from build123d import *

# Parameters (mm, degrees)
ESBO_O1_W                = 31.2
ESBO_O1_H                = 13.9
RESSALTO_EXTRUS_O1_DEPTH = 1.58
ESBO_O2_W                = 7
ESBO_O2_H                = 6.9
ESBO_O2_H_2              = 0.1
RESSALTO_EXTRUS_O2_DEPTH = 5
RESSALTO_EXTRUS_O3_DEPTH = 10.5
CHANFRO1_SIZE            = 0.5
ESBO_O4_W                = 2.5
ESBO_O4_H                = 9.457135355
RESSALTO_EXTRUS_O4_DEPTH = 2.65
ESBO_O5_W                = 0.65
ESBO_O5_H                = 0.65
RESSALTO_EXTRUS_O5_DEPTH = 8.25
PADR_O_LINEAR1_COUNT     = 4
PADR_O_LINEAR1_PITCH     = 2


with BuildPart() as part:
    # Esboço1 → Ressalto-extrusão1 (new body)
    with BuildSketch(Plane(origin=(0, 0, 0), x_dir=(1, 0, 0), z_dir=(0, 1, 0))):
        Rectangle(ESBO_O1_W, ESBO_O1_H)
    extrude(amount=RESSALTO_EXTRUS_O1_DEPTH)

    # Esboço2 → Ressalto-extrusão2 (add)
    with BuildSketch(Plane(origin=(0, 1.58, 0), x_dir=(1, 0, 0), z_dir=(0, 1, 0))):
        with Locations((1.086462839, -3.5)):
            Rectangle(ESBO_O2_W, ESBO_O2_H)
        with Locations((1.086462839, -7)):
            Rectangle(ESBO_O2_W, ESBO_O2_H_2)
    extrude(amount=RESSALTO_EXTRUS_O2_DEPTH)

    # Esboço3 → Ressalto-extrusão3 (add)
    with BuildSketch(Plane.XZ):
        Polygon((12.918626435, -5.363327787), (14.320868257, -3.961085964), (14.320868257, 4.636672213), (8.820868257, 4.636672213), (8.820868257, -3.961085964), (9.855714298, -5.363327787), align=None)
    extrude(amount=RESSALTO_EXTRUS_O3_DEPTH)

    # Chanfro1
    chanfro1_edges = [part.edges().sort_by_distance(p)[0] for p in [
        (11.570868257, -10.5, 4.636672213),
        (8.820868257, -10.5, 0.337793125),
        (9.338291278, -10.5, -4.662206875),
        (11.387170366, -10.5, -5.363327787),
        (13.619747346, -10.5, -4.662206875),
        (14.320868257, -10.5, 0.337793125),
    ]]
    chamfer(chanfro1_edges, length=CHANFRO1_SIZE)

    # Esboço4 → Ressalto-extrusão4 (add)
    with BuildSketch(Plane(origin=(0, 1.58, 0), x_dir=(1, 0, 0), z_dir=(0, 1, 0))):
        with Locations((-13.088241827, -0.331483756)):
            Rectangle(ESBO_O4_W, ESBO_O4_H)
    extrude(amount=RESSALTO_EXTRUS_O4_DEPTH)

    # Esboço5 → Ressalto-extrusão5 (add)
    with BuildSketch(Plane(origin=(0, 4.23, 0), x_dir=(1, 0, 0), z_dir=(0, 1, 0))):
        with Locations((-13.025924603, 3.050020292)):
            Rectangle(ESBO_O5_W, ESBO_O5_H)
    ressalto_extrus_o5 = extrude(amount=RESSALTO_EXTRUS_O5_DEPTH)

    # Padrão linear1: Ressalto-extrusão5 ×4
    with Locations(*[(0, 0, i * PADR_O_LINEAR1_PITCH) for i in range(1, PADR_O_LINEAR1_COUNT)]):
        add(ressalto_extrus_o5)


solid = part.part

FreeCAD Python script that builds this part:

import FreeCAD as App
import Part
import Sketcher
from FreeCAD import Vector
Q = App.Units.Quantity


def edges_at(feature, points):
    """Names of the edges that pass closest to the given points."""
    edges = feature.Shape.Edges
    near = lambda p: min(range(len(edges)), key=lambda i: edges[i].distToShape(Part.Vertex(*p))[0])
    return sorted({f"Edge{near(p) + 1}" for p in points})


def add_polygon(sketch, points):
    """Adds a closed chain of lines whose ends are joined by coincident constraints."""
    first, n = sketch.GeometryCount, len(points)
    for a, b in zip(points, points[1:] + points[:1]):
        sketch.addGeometry(Part.LineSegment(App.Vector(*a, 0), App.Vector(*b, 0)), False)
    for i in range(n):
        sketch.addConstraint(Sketcher.Constraint("Coincident", first + i, 2, first + (i + 1) % n, 1))

doc = App.newDocument("Part")
body = doc.addObject("PartDesign::Body", "Body")

# Sketch on XZ plane
sketch1 = doc.addObject("Sketcher::SketchObject", "Sketch")
body.addObject(sketch1)
sketch1.AttachmentSupport = (doc.XZ_Plane, [""])
sketch1.MapMode = "FlatFace"
add_polygon(sketch1, [(-16, -7), (-16, 7), (16, 7), (16, -7)])  # lines 0-3
sketch1.addConstraint(Sketcher.Constraint("Vertical", 0))
sketch1.addConstraint(Sketcher.Constraint("Horizontal", 1))
sketch1.addConstraint(Sketcher.Constraint("Vertical", 2))
sketch1.addConstraint(Sketcher.Constraint("Horizontal", 3))
sketch1.addConstraint(Sketcher.Constraint("Symmetric", 0, 2, 2, 2, -1, 1))
sketch1.addConstraint(Sketcher.Constraint("DistanceX", 1, 1, 1, 2, 31.2))
sketch1.addConstraint(Sketcher.Constraint("DistanceY", 0, 1, 0, 2, 13.9))
pad1 = doc.addObject("PartDesign::Pad", "Pad")
body.addObject(pad1)
pad1.Profile = sketch1
pad1.Length = 1.58
pad1.Reversed = True

# Sketch on XZ plane
sketch2 = doc.addObject("Sketcher::SketchObject", "Sketch001")
body.addObject(sketch2)
sketch2.AttachmentSupport = (doc.XZ_Plane, [""])
sketch2.MapMode = "FlatFace"
sketch2.AttachmentOffset = App.Placement(Vector(0, 0, -1.58), App.Rotation())
add_polygon(sketch2, [(-2, 0), (-2, 7), (5, 7), (5, 0)])  # lines 0-3
sketch2.addConstraint(Sketcher.Constraint("Vertical", 0))
sketch2.addConstraint(Sketcher.Constraint("Horizontal", 1))
sketch2.addConstraint(Sketcher.Constraint("Vertical", 2))
sketch2.addConstraint(Sketcher.Constraint("Horizontal", 3))
sketch2.addConstraint(Sketcher.Constraint("Equal", 3, 0))
sketch2.addConstraint(Sketcher.Constraint("DistanceX", 1, 1, 1, 2, 7.0))
sketch2.addConstraint(Sketcher.Constraint("DistanceY", -1, 1, 0, 2, 7.05))
sketch2.addConstraint(Sketcher.Constraint("DistanceX", 0, 2, -1, 1, 2.413537))
pad2 = doc.addObject("PartDesign::Pad", "Pad001")
body.addObject(pad2)
pad2.Profile = sketch2
pad2.Length = 5
pad2.Reversed = True

# Sketch on XZ plane
sketch3 = doc.addObject("Sketcher::SketchObject", "Sketch002")
body.addObject(sketch3)
sketch3.AttachmentSupport = (doc.XZ_Plane, [""])
sketch3.MapMode = "FlatFace"
add_polygon(sketch3, [(12.9, -5.4), (14.3, -4), (14.3, 4.6), (8.8, 4.6), (8.8, -4), (9.9, -5.4)])  # lines 0-5
sketch3.addConstraint(Sketcher.Constraint("Vertical", 1))
sketch3.addConstraint(Sketcher.Constraint("Horizontal", 2))
sketch3.addConstraint(Sketcher.Constraint("Vertical", 3))
sketch3.addConstraint(Sketcher.Constraint("Horizontal", 5))
sketch3.addConstraint(Sketcher.Constraint("Horizontal", 0, 2, 3, 2))
sketch3.addConstraint(Sketcher.Constraint("Angle", 0, Q("45 deg")))
sketch3.addConstraint(Sketcher.Constraint("DistanceX", 2, 2, 2, 1, 5.5))
sketch3.addConstraint(Sketcher.Constraint("DistanceY", 4, 2, 2, 2, 10.0))
sketch3.addConstraint(Sketcher.Constraint("DistanceY", 1, 1, 1, 2, 8.597758))
sketch3.addConstraint(Sketcher.Constraint("DistanceX", 5, 1, 5, 2, 3.062912))
sketch3.addConstraint(Sketcher.Constraint("DistanceX", -1, 1, 0, 2, 14.320868))
sketch3.addConstraint(Sketcher.Constraint("DistanceY", 0, 2, -1, 1, 3.961086))
pad3 = doc.addObject("PartDesign::Pad", "Pad002")
body.addObject(pad3)
pad3.Profile = sketch3
pad3.Length = 10.5
doc.recompute()

chamfer = doc.addObject("PartDesign::Chamfer", "Chamfer")
body.addObject(chamfer)
chamfer.Base = (pad3, edges_at(pad3, [
    (11.571, -10.5, 4.637),
    (8.821, -10.5, 0.338),
    (9.338, -10.5, -4.662),
    (11.387, -10.5, -5.363),
    (13.62, -10.5, -4.662),
    (14.321, -10.5, 0.338),
]))
chamfer.Size = 0.5

# Sketch on XZ plane
sketch4 = doc.addObject("Sketcher::SketchObject", "Sketch003")
body.addObject(sketch4)
sketch4.AttachmentSupport = (doc.XZ_Plane, [""])
sketch4.MapMode = "FlatFace"
sketch4.AttachmentOffset = App.Placement(Vector(0, 0, -1.58), App.Rotation())
add_polygon(sketch4, [(-14.3, -4.4), (-14.3, 5.1), (-11.8, 5.1), (-11.8, -4.4)])  # lines 0-3
sketch4.addConstraint(Sketcher.Constraint("Vertical", 0))
sketch4.addConstraint(Sketcher.Constraint("Horizontal", 1))
sketch4.addConstraint(Sketcher.Constraint("Vertical", 2))
sketch4.addConstraint(Sketcher.Constraint("Horizontal", 3))
sketch4.addConstraint(Sketcher.Constraint("DistanceX", 1, 1, 1, 2, 2.5))
sketch4.addConstraint(Sketcher.Constraint("DistanceY", 0, 1, 0, 2, 9.457135))
sketch4.addConstraint(Sketcher.Constraint("DistanceX", 0, 2, -1, 1, 14.338242))
sketch4.addConstraint(Sketcher.Constraint("DistanceY", -1, 1, 0, 2, 5.060051))
pad4 = doc.addObject("PartDesign::Pad", "Pad003")
body.addObject(pad4)
pad4.Profile = sketch4
pad4.Length = 2.65
pad4.Reversed = True

# Sketch on XZ plane
sketch5 = doc.addObject("Sketcher::SketchObject", "Sketch004")
body.addObject(sketch5)
sketch5.AttachmentSupport = (doc.XZ_Plane, [""])
sketch5.MapMode = "FlatFace"
sketch5.AttachmentOffset = App.Placement(Vector(0, 0, -4.23), App.Rotation())
add_polygon(sketch5, [(-13.4, -3.4), (-13.4, -2.7), (-12.7, -2.7), (-12.7, -3.4)])  # lines 0-3
sketch5.addConstraint(Sketcher.Constraint("Vertical", 0))
sketch5.addConstraint(Sketcher.Constraint("Horizontal", 1))
sketch5.addConstraint(Sketcher.Constraint("Vertical", 2))
sketch5.addConstraint(Sketcher.Constraint("Horizontal", 3))
sketch5.addConstraint(Sketcher.Constraint("Equal", 3, 0))
sketch5.addConstraint(Sketcher.Constraint("DistanceX", 1, 1, 1, 2, 0.65))
sketch5.addConstraint(Sketcher.Constraint("DistanceY", 0, 2, -1, 1, 2.72502))
sketch5.addConstraint(Sketcher.Constraint("DistanceX", 0, 2, -1, 1, 13.350925))
pad5 = doc.addObject("PartDesign::Pad", "Pad004")
body.addObject(pad5)
pad5.Profile = sketch5
pad5.Length = 8.25
pad5.Reversed = True
doc.recompute()

linearpattern = doc.addObject("PartDesign::LinearPattern", "LinearPattern")
body.addObject(linearpattern)
linearpattern.Originals = [pad5]
linearpattern.Direction = (doc.Z_Axis, [""])
linearpattern.Mode = "offset"
linearpattern.Offset = 2
linearpattern.Occurrences = 4
body.Tip = linearpattern

doc.recompute()
